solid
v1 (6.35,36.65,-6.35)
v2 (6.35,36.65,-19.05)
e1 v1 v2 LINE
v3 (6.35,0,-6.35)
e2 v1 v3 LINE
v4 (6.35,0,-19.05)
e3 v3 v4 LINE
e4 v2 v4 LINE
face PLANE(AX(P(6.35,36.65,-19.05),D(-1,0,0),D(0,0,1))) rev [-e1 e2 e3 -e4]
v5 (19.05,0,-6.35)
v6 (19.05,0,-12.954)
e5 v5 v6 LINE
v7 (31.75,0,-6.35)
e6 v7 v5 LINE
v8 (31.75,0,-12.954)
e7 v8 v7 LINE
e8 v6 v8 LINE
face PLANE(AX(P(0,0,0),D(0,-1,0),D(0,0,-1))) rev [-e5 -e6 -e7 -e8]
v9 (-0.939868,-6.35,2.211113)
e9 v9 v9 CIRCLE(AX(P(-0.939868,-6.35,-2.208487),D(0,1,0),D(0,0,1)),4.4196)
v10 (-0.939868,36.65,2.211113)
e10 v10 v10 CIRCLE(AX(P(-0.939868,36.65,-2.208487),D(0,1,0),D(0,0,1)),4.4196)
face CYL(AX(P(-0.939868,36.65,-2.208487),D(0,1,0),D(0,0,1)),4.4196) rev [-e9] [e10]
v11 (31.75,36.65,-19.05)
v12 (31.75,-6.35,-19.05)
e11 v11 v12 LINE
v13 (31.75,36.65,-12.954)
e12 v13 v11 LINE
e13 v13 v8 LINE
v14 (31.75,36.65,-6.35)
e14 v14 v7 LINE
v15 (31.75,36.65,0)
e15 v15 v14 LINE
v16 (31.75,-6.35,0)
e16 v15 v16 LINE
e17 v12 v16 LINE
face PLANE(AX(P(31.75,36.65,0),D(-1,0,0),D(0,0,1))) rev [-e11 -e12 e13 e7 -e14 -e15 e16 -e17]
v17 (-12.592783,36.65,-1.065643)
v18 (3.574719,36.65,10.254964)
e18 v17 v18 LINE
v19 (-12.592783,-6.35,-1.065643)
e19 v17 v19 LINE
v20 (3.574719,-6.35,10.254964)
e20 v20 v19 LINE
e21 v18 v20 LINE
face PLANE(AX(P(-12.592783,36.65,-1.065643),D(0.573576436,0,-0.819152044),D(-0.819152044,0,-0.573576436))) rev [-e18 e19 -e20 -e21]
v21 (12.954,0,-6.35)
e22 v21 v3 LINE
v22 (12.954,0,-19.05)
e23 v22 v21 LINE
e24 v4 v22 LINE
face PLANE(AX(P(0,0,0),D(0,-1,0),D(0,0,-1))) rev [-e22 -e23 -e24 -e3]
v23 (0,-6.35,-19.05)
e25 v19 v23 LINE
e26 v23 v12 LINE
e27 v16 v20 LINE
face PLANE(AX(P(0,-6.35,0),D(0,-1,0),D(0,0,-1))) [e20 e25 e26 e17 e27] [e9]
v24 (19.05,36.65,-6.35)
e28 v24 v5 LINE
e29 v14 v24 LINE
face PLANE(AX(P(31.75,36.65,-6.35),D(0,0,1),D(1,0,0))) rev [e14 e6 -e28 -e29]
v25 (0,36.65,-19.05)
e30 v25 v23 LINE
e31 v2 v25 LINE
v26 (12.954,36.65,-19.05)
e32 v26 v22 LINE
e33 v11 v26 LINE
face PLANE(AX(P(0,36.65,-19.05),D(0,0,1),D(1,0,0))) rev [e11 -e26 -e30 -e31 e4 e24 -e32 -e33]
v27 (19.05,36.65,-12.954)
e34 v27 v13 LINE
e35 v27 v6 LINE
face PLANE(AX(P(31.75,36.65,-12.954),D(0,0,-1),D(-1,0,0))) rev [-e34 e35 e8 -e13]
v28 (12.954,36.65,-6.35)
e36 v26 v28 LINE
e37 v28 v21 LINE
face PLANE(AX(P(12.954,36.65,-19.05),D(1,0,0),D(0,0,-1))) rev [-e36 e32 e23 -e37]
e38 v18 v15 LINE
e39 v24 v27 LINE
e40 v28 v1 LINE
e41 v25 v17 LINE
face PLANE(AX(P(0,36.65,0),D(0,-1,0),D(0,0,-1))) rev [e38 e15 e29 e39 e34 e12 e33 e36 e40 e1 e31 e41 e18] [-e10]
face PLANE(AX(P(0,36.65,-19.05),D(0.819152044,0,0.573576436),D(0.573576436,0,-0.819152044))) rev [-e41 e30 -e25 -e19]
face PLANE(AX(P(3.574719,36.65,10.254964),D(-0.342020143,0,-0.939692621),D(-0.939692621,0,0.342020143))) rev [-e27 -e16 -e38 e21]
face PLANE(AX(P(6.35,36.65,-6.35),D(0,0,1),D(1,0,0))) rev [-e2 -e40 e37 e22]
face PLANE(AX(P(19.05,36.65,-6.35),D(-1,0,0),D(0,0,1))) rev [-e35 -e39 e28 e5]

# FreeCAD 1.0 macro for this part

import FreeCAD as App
import Part
import Sketcher
Q = App.Units.Quantity

doc = App.newDocument("Part")
body = doc.addObject("PartDesign::Body", "Body")

# Sketch on XZ plane
sketch1 = doc.addObject("Sketcher::SketchObject", "Sketch")
body.addObject(sketch1)
sketch1.AttachmentSupport = (doc.XZ_Plane, [""])
sketch1.MapMode = "FlatFace"
sketch1.addGeometry(Part.LineSegment(App.Vector(32, -19, 0), App.Vector(13, -19, 0)), False)
sketch1.addGeometry(Part.LineSegment(App.Vector(13, -19, 0), App.Vector(13, -6, 0)), False)
sketch1.addGeometry(Part.LineSegment(App.Vector(13, -6, 0), App.Vector(6, -6, 0)), False)
sketch1.addGeometry(Part.LineSegment(App.Vector(6, -6, 0), App.Vector(6, -19, 0)), False)
sketch1.addGeometry(Part.LineSegment(App.Vector(6, -19, 0), App.Vector(0, -19, 0)), False)
sketch1.addGeometry(Part.LineSegment(App.Vector(0, -19, 0), App.Vector(-13, -1, 0)), False)
sketch1.addGeometry(Part.LineSegment(App.Vector(-13, -1, 0), App.Vector(4, 10, 0)), False)
sketch1.addGeometry(Part.LineSegment(App.Vector(4, 10, 0), App.Vector(32, 0, 0)), False)
sketch1.addGeometry(Part.LineSegment(App.Vector(32, 0, 0), App.Vector(32, -6, 0)), False)
sketch1.addGeometry(Part.LineSegment(App.Vector(32, -6, 0), App.Vector(19, -6, 0)), False)
sketch1.addGeometry(Part.LineSegment(App.Vector(19, -6, 0), App.Vector(19, -13, 0)), False)
sketch1.addGeometry(Part.LineSegment(App.Vector(19, -13, 0), App.Vector(32, -13, 0)), False)
sketch1.addGeometry(Part.LineSegment(App.Vector(32, -13, 0), App.Vector(32, -19, 0)), False)
sketch1.addConstraint(Sketcher.Constraint("Coincident", 0, 2, 1, 1))
sketch1.addConstraint(Sketcher.Constraint("Coincident", 1, 2, 2, 1))
sketch1.addConstraint(Sketcher.Constraint("Coincident", 2, 2, 3, 1))
sketch1.addConstraint(Sketcher.Constraint("Coincident", 3, 2, 4, 1))
sketch1.addConstraint(Sketcher.Constraint("Coincident", 4, 2, 5, 1))
sketch1.addConstraint(Sketcher.Constraint("Coincident", 5, 2, 6, 1))
sketch1.addConstraint(Sketcher.Constraint("Coincident", 6, 2, 7, 1))
sketch1.addConstraint(Sketcher.Constraint("Coincident", 7, 2, 8, 1))
sketch1.addConstraint(Sketcher.Constraint("Coincident", 8, 2, 9, 1))
sketch1.addConstraint(Sketcher.Constraint("Coincident", 9, 2, 10, 1))
sketch1.addConstraint(Sketcher.Constraint("Coincident", 10, 2, 11, 1))
sketch1.addConstraint(Sketcher.Constraint("Coincident", 11, 2, 12, 1))
sketch1.addConstraint(Sketcher.Constraint("Coincident", 12, 2, 0, 1))
sketch1.addConstraint(Sketcher.Constraint("Horizontal", 0))
sketch1.addConstraint(Sketcher.Constraint("Vertical", 1))
sketch1.addConstraint(Sketcher.Constraint("Horizontal", 2))
sketch1.addConstraint(Sketcher.Constraint("Vertical", 3))
sketch1.addConstraint(Sketcher.Constraint("Horizontal", 4))
sketch1.addConstraint(Sketcher.Constraint("Vertical", 8))
sketch1.addConstraint(Sketcher.Constraint("Horizontal", 9))
sketch1.addConstraint(Sketcher.Constraint("Vertical", 10))
sketch1.addConstraint(Sketcher.Constraint("Horizontal", 11))
sketch1.addConstraint(Sketcher.Constraint("Vertical", 12))
sketch1.addConstraint(Sketcher.Constraint("PointOnObject", 4, 2, -2))
sketch1.addConstraint(Sketcher.Constraint("PointOnObject", 7, 2, -1))
sketch1.addConstraint(Sketcher.Constraint("Perpendicular", 5, 6))
sketch1.addConstraint(Sketcher.Constraint("Horizontal", 0, 2, 3, 2))
sketch1.addConstraint(Sketcher.Constraint("Horizontal", 2, 2, 8, 2))
sketch1.addConstraint(Sketcher.Constraint("Vertical", 8, 2, 11, 2))
sketch1.addConstraint(Sketcher.Constraint("Equal", 11, 1))
sketch1.addConstraint(Sketcher.Constraint("Equal", 4, 8))
sketch1.addConstraint(Sketcher.Constraint("Equal", 2, 10))
sketch1.addConstraint(Sketcher.Constraint("DistanceX", 9, 2, 9, 1, Q("0.5 in")))
sketch1.addConstraint(Sketcher.Constraint("Angle", 5, Q("125 deg")))
sketch1.addConstraint(Sketcher.Constraint("Angle", 7, Q("-20 deg")))
sketch1.addConstraint(Sketcher.Constraint("DistanceX", 2, 2, 7, 2, Q("1 in")))
sketch1.addConstraint(Sketcher.Constraint("DistanceX", 0, 2, 0, 1, Q("0.74 in")))
sketch1.addConstraint(Sketcher.Constraint("DistanceX", 4, 2, 4, 1, Q("0.25 in")))
sketch1.addConstraint(Sketcher.Constraint("DistanceX", 5, 2, 6, 2, Q("16.167501 mm")))
pad1 = doc.addObject("PartDesign::Pad", "Pad")
body.addObject(pad1)
pad1.Profile = sketch1
pad1.Length = 36.65
pad1.Reversed = True

# Sketch on XZ plane
sketch2 = doc.addObject("Sketcher::SketchObject", "Sketch001")
body.addObject(sketch2)
sketch2.AttachmentSupport = (doc.XZ_Plane, [""])
sketch2.MapMode = "FlatFace"
sketch2.addGeometry(Part.LineSegment(App.Vector(32, -19, 0), App.Vector(32, 0, 0)), False)
sketch2.addGeometry(Part.LineSegment(App.Vector(32, 0, 0), App.Vector(4, 10, 0)), False)
sketch2.addGeometry(Part.LineSegment(App.Vector(4, 10, 0), App.Vector(-13, -1, 0)), False)
sketch2.addGeometry(Part.LineSegment(App.Vector(-13, -1, 0), App.Vector(0, -19, 0)), False)
sketch2.addGeometry(Part.LineSegment(App.Vector(0, -19, 0), App.Vector(32, -19, 0)), False)
sketch2.addConstraint(Sketcher.Constraint("Coincident", 0, 2, 1, 1))
sketch2.addConstraint(Sketcher.Constraint("Coincident", 1, 2, 2, 1))
sketch2.addConstraint(Sketcher.Constraint("Coincident", 2, 2, 3, 1))
sketch2.addConstraint(Sketcher.Constraint("Coincident", 3, 2, 4, 1))
sketch2.addConstraint(Sketcher.Constraint("Coincident", 4, 2, 0, 1))
sketch2.addConstraint(Sketcher.Constraint("Vertical", 0))
sketch2.addConstraint(Sketcher.Constraint("Horizontal", 4))
sketch2.addConstraint(Sketcher.Constraint("PointOnObject", 0, 2, -1))
sketch2.addConstraint(Sketcher.Constraint("PointOnObject", 3, 2, -2))
sketch2.addConstraint(Sketcher.Constraint("Perpendicular", 2, 3))
sketch2.addConstraint(Sketcher.Constraint("Angle", 1, Q("160 deg")))
sketch2.addConstraint(Sketcher.Constraint("Angle", 2, Q("-145 deg")))
sketch2.addConstraint(Sketcher.Constraint("DistanceX", 4, 1, 4, 2, Q("1.25 in")))
sketch2.addConstraint(Sketcher.Constraint("DistanceY", 0, 1, 0, 2, Q("0.75 in")))
sketch2.addConstraint(Sketcher.Constraint("DistanceX", 2, 2, 1, 2, Q("16.167501 mm")))
pad2 = doc.addObject("PartDesign::Pad", "Pad001")
body.addObject(pad2)
pad2.Profile = sketch2
pad2.Length = Q("0.25 in")

# Sketch on XZ plane
sketch3 = doc.addObject("Sketcher::SketchObject", "Sketch002")
body.addObject(sketch3)
sketch3.AttachmentSupport = (doc.XZ_Plane, [""])
sketch3.MapMode = "FlatFace"
sketch3.AttachmentOffset = App.Placement(App.Vector(0, 0, -36.65), App.Rotation())
sketch3.addGeometry(Part.Circle(App.Vector(-0.9, -2.2, 0), App.Vector(0, 0, 1), 4.4), False)
sketch3.addConstraint(Sketcher.Constraint("Diameter", 0, Q("0.348 in")))
sketch3.addConstraint(Sketcher.Constraint("DistanceX", 0, 3, -1, 1, Q("0.939868 mm")))
sketch3.addConstraint(Sketcher.Constraint("DistanceY", 0, 3, -1, 1, Q("2.208487 mm")))
doc.recompute()
hole = doc.addObject("PartDesign::Hole", "Hole")
body.addObject(hole)
hole.Profile = sketch3
hole.ThreadType = "None"
hole.Diameter = Q("0.348 in")
hole.DepthType = "ThroughAll"
hole.Reversed = True

doc.recompute()
